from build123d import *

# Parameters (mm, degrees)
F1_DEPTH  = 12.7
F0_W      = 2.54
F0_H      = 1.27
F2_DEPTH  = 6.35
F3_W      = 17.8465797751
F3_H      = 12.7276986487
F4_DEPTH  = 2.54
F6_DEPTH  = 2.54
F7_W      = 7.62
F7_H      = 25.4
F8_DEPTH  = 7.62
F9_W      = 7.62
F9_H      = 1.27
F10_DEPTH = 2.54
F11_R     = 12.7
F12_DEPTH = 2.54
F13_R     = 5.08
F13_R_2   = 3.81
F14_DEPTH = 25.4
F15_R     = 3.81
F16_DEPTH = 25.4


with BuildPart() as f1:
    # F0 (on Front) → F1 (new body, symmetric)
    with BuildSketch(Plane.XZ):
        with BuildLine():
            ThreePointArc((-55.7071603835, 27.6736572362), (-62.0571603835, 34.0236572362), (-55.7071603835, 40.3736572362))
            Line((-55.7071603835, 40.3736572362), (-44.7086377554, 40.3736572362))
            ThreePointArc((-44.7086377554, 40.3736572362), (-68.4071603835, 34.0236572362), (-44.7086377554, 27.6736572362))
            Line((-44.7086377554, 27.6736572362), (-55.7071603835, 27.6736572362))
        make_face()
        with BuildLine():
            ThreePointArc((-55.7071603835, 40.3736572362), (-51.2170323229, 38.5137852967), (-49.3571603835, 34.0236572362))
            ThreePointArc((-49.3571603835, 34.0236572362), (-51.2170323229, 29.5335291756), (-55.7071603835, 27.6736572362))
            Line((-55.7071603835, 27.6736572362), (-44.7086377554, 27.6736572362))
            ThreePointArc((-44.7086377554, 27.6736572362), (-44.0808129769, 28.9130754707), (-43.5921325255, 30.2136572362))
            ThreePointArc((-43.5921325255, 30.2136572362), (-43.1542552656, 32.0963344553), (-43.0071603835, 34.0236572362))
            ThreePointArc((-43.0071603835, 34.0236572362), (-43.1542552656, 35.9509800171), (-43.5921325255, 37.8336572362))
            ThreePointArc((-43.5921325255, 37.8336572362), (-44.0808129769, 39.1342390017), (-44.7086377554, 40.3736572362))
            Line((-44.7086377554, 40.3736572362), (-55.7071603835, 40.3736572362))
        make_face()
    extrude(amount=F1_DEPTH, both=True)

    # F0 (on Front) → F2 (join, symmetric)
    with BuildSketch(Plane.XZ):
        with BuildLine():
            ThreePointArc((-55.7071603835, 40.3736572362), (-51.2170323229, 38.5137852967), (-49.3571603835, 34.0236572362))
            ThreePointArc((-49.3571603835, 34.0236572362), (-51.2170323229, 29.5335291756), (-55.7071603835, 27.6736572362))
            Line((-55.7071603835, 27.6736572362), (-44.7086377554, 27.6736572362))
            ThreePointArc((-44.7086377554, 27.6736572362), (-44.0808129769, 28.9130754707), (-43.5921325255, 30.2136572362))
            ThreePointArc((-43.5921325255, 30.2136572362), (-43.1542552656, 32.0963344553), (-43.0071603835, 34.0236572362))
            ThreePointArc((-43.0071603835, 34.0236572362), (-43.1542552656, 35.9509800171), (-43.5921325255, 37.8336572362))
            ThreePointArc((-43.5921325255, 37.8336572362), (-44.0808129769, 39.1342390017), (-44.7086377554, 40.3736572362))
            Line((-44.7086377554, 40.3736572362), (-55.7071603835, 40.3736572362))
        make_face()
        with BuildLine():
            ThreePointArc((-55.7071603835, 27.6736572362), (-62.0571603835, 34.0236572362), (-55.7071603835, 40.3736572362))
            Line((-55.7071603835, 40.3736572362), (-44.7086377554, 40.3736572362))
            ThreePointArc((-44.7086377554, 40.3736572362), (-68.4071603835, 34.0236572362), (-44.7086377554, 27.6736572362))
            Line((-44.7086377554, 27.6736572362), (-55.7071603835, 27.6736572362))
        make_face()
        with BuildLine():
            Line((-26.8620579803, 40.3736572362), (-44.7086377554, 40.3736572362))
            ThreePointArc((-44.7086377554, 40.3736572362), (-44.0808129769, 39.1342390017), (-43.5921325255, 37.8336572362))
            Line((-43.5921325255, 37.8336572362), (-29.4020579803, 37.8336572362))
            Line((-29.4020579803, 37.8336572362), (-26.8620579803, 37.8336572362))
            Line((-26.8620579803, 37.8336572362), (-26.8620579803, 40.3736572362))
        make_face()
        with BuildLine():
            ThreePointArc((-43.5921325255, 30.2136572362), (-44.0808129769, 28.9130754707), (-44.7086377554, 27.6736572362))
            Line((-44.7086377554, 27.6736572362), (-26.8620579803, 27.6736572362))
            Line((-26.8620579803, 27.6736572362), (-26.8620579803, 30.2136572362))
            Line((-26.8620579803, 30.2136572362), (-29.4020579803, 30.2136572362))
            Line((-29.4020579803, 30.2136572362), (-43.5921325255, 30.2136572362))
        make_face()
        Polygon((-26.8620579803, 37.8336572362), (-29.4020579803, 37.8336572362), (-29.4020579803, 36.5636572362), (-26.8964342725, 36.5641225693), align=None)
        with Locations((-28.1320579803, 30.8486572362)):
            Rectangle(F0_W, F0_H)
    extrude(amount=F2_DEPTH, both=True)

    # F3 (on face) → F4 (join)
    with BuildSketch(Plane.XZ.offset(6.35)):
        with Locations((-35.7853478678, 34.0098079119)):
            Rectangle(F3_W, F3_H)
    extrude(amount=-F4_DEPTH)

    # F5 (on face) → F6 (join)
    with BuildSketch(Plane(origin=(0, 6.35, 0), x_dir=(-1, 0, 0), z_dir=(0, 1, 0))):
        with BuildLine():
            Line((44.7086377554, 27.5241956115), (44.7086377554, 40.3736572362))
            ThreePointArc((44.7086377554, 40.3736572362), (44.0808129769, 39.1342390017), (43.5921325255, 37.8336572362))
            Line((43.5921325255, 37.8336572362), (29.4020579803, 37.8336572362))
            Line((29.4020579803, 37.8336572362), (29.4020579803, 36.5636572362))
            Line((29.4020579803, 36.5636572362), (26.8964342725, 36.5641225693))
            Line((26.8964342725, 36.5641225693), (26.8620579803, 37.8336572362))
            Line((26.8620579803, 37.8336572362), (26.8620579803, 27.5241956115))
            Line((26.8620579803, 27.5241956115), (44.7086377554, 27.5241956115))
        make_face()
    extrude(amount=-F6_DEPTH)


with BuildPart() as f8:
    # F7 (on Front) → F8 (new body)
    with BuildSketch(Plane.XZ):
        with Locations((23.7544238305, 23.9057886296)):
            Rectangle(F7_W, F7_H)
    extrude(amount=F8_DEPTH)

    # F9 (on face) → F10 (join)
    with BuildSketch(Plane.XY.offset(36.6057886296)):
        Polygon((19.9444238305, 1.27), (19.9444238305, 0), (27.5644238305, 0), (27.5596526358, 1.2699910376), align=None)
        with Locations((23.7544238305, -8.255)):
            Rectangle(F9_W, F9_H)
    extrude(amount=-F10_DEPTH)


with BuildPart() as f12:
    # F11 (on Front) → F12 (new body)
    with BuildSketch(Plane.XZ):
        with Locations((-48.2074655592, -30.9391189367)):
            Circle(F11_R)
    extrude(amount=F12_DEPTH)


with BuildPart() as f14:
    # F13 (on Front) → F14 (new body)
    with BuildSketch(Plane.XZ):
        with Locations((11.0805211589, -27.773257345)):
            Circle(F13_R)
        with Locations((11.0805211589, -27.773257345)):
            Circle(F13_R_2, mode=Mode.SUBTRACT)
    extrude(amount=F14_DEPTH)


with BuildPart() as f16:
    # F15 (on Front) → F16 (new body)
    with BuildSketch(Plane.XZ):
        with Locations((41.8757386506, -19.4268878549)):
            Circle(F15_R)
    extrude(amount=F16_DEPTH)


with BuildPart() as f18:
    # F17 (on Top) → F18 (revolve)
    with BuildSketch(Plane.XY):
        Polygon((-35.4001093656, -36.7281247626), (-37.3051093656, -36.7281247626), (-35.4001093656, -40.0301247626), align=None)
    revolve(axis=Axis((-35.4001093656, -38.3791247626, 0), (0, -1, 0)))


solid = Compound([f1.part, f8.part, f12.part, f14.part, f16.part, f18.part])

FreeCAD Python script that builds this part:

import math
import FreeCAD as App
import Part
import Sketcher
from FreeCAD import Vector
Q = App.Units.Quantity


def add_polygon(sketch, points):
    """Adds a closed chain of lines whose ends are joined by coincident constraints."""
    first, n = sketch.GeometryCount, len(points)
    for a, b in zip(points, points[1:] + points[:1]):
        sketch.addGeometry(Part.LineSegment(App.Vector(*a, 0), App.Vector(*b, 0)), False)
    for i in range(n):
        sketch.addConstraint(Sketcher.Constraint("Coincident", first + i, 2, first + (i + 1) % n, 1))

doc = App.newDocument("Part")
body = doc.addObject("PartDesign::Body", "Body")

# Sketch on XZ plane
sketch1 = doc.addObject("Sketcher::SketchObject", "Sketch")
body.addObject(sketch1)
sketch1.AttachmentSupport = (doc.XZ_Plane, [""])
sketch1.MapMode = "FlatFace"
sketch1.addGeometry(Part.ArcOfCircle(Part.Circle(Vector(-55.7, 34, 0), Vector(0, 0, 1), 12.7), math.radians(30), math.radians(330)), False)
sketch1.addGeometry(Part.ArcOfCircle(Part.Circle(Vector(-55.7, 34, 0), Vector(0, 0, 1), 12.7), math.radians(-30), math.radians(-17.46)), False)
sketch1.addGeometry(Part.ArcOfCircle(Part.Circle(Vector(-55.7, 34, 0), Vector(0, 0, 1), 12.7), math.radians(-17.46), math.radians(0)), False)
sketch1.addGeometry(Part.ArcOfCircle(Part.Circle(Vector(-55.7, 34, 0), Vector(0, 0, 1), 12.7), math.radians(0), math.radians(17.46)), False)
sketch1.addGeometry(Part.ArcOfCircle(Part.Circle(Vector(-55.7, 34, 0), Vector(0, 0, 1), 12.7), math.radians(17.46), math.radians(30)), False)
sketch1.addGeometry(Part.ArcOfCircle(Part.Circle(Vector(-55.7, 34, 0), Vector(0, 0, 1), 6.3), math.radians(90), math.radians(270)), False)
sketch1.addGeometry(Part.ArcOfCircle(Part.Circle(Vector(-55.7, 34, 0), Vector(0, 0, 1), 6.3), math.radians(0), math.radians(90)), False)
sketch1.addGeometry(Part.ArcOfCircle(Part.Circle(Vector(-55.7, 34, 0), Vector(0, 0, 1), 6.3), math.radians(-90), math.radians(0)), False)
sketch1.addConstraint(Sketcher.Constraint("Tangent", 0, 2, 1, 1))
sketch1.addConstraint(Sketcher.Constraint("Tangent", 1, 2, 2, 1))
sketch1.addConstraint(Sketcher.Constraint("Tangent", 2, 2, 3, 1))
sketch1.addConstraint(Sketcher.Constraint("Tangent", 3, 2, 4, 1))
sketch1.addConstraint(Sketcher.Constraint("Tangent", 4, 2, 0, 1))
sketch1.addConstraint(Sketcher.Constraint("Tangent", 5, 1, 6, 2))
sketch1.addConstraint(Sketcher.Constraint("Tangent", 6, 1, 7, 2))
sketch1.addConstraint(Sketcher.Constraint("Tangent", 7, 1, 5, 2))
sketch1.addConstraint(Sketcher.Constraint("Coincident", 2, 3, 0, 3))
sketch1.addConstraint(Sketcher.Constraint("Coincident", 5, 3, 0, 3))
sketch1.addConstraint(Sketcher.Constraint("Horizontal", 7, 3, 2, 2))
sketch1.addConstraint(Sketcher.Constraint("Horizontal", 4, 2, 5, 1))
sketch1.addConstraint(Sketcher.Constraint("Horizontal", 2, 2, 6, 1))
sketch1.addConstraint(Sketcher.Constraint("Horizontal", 0, 2, 7, 1))
sketch1.addConstraint(Sketcher.Constraint("Vertical", 1, 2, 3, 2))
sketch1.addConstraint(Sketcher.Constraint("Vertical", 7, 3, 5, 1))
sketch1.addConstraint(Sketcher.Constraint("Vertical", 5, 1, 7, 1))
sketch1.addConstraint(Sketcher.Constraint("Radius", 0, Q("0.5 in")))
sketch1.addConstraint(Sketcher.Constraint("Radius", 5, Q("0.25 in")))
sketch1.addConstraint(Sketcher.Constraint("DistanceY", 0, 2, 1, 2, Q("0.1 in")))
sketch1.addConstraint(Sketcher.Constraint("DistanceX", 0, 3, -1, 1, 55.70716))
sketch1.addConstraint(Sketcher.Constraint("DistanceY", -1, 1, 0, 3, 34.023657))
pad1 = doc.addObject("PartDesign::Pad", "Pad")
body.addObject(pad1)
pad1.Profile = sketch1
pad1.Length = Q("1 in")
pad1.Midplane = True

# Sketch on XZ plane
sketch2 = doc.addObject("Sketcher::SketchObject", "Sketch001")
body.addObject(sketch2)
sketch2.AttachmentSupport = (doc.XZ_Plane, [""])
sketch2.MapMode = "FlatFace"
sketch2.addGeometry(Part.ArcOfCircle(Part.Circle(Vector(-55.7, 34, 0), Vector(0, 0, 1), 12.7), math.radians(-17.46), math.radians(0)), False)
sketch2.addGeometry(Part.ArcOfCircle(Part.Circle(Vector(-55.7, 34, 0), Vector(0, 0, 1), 12.7), math.radians(0), math.radians(17.46)), False)
sketch2.addGeometry(Part.LineSegment(Vector(-43.6, 37.8, 0), Vector(-29.4, 37.8, 0)), False)
sketch2.addGeometry(Part.LineSegment(Vector(-29.4, 37.8, 0), Vector(-29.4, 36.6, 0)), False)
sketch2.addGeometry(Part.LineSegment(Vector(-29.4, 36.6, 0), Vector(-26.9, 36.6, 0)), False)
sketch2.addGeometry(Part.LineSegment(Vector(-26.9, 36.6, 0), Vector(-26.9, 37.8, 0)), False)
sketch2.addGeometry(Part.LineSegment(Vector(-26.9, 37.8, 0), Vector(-26.9, 40.4, 0)), False)
sketch2.addGeometry(Part.LineSegment(Vector(-26.9, 40.4, 0), Vector(-44.7, 40.4, 0)), False)
sketch2.addGeometry(Part.ArcOfCircle(Part.Circle(Vector(-55.7, 34, 0), Vector(0, 0, 1), 12.7), math.radians(30), math.radians(330)), False)
sketch2.addGeometry(Part.LineSegment(Vector(-44.7, 27.7, 0), Vector(-26.9, 27.7, 0)), False)
sketch2.addGeometry(Part.LineSegment(Vector(-26.9, 27.7, 0), Vector(-26.9, 31.5, 0)), False)
sketch2.addGeometry(Part.LineSegment(Vector(-26.9, 31.5, 0), Vector(-29.4, 31.5, 0)), False)
sketch2.addGeometry(Part.LineSegment(Vector(-29.4, 31.5, 0), Vector(-29.4, 30.2, 0)), False)
sketch2.addGeometry(Part.LineSegment(Vector(-29.4, 30.2, 0), Vector(-43.6, 30.2, 0)), False)
sketch2.addGeometry(Part.ArcOfCircle(Part.Circle(Vector(-55.7, 34, 0), Vector(0, 0, 1), 6.3), math.radians(0), math.radians(90)), False)
sketch2.addGeometry(Part.ArcOfCircle(Part.Circle(Vector(-55.7, 34, 0), Vector(0, 0, 1), 6.3), math.radians(-90), math.radians(0)), False)
sketch2.addGeometry(Part.ArcOfCircle(Part.Circle(Vector(-55.7, 34, 0), Vector(0, 0, 1), 6.3), math.radians(90), math.radians(270)), False)
sketch2.addConstraint(Sketcher.Constraint("Tangent", 0, 2, 1, 1))
sketch2.addConstraint(Sketcher.Constraint("Coincident", 1, 2, 2, 1))
sketch2.addConstraint(Sketcher.Constraint("Coincident", 2, 2, 3, 1))
sketch2.addConstraint(Sketcher.Constraint("Coincident", 3, 2, 4, 1))
sketch2.addConstraint(Sketcher.Constraint("Coincident", 4, 2, 5, 1))
sketch2.addConstraint(Sketcher.Constraint("Coincident", 5, 2, 6, 1))
sketch2.addConstraint(Sketcher.Constraint("Coincident", 6, 2, 7, 1))
sketch2.addConstraint(Sketcher.Constraint("Coincident", 7, 2, 8, 1))
sketch2.addConstraint(Sketcher.Constraint("Coincident", 8, 2, 9, 1))
sketch2.addConstraint(Sketcher.Constraint("Coincident", 9, 2, 10, 1))
sketch2.addConstraint(Sketcher.Constraint("Coincident", 10, 2, 11, 1))
sketch2.addConstraint(Sketcher.Constraint("Coincident", 11, 2, 12, 1))
sketch2.addConstraint(Sketcher.Constraint("Coincident", 12, 2, 13, 1))
sketch2.addConstraint(Sketcher.Constraint("Coincident", 13, 2, 0, 1))
sketch2.addConstraint(Sketcher.Constraint("Tangent", 14, 1, 15, 2))
sketch2.addConstraint(Sketcher.Constraint("Tangent", 15, 1, 16, 2))
sketch2.addConstraint(Sketcher.Constraint("Tangent", 16, 1, 14, 2))
sketch2.addConstraint(Sketcher.Constraint("Horizontal", 2))
sketch2.addConstraint(Sketcher.Constraint("Vertical", 3))
sketch2.addConstraint(Sketcher.Constraint("Vertical", 6))
sketch2.addConstraint(Sketcher.Constraint("Horizontal", 7))
sketch2.addConstraint(Sketcher.Constraint("Horizontal", 9))
sketch2.addConstraint(Sketcher.Constraint("Vertical", 10))
sketch2.addConstraint(Sketcher.Constraint("Horizontal", 11))
sketch2.addConstraint(Sketcher.Constraint("Vertical", 12))
sketch2.addConstraint(Sketcher.Constraint("Horizontal", 13))
sketch2.addConstraint(Sketcher.Constraint("Coincident", 8, 3, 0, 3))
sketch2.addConstraint(Sketcher.Constraint("Coincident", 14, 3, 0, 3))
sketch2.addConstraint(Sketcher.Constraint("Equal", 0, 1))
sketch2.addConstraint(Sketcher.Constraint("Equal", 1, 8))
sketch2.addConstraint(Sketcher.Constraint("Horizontal", 16, 3, 0, 2))
sketch2.addConstraint(Sketcher.Constraint("Horizontal", 2, 2, 5, 2))
sketch2.addConstraint(Sketcher.Constraint("Horizontal", 0, 2, 14, 1))
sketch2.addConstraint(Sketcher.Constraint("Horizontal", 9, 2, 15, 1))
sketch2.addConstraint(Sketcher.Constraint("Horizontal", 7, 2, 16, 1))
sketch2.addConstraint(Sketcher.Constraint("Vertical", 6, 2, 9, 2))
sketch2.addConstraint(Sketcher.Constraint("Vertical", 3, 2, 11, 2))
sketch2.addConstraint(Sketcher.Constraint("Vertical", 1, 2, 13, 2))
sketch2.addConstraint(Sketcher.Constraint("Vertical", 16, 3, 15, 1))
sketch2.addConstraint(Sketcher.Constraint("Vertical", 15, 1, 16, 1))
sketch2.addConstraint(Sketcher.Constraint("Equal", 11, 6))
sketch2.addConstraint(Sketcher.Constraint("Equal", 3, 12))
sketch2.addConstraint(Sketcher.Constraint("Radius", 0, Q("0.5 in")))
sketch2.addConstraint(Sketcher.Constraint("Radius", 14, Q("0.25 in")))
sketch2.addConstraint(Sketcher.Constraint("DistanceX", 11, 2, 11, 1, Q("0.1 in")))
sketch2.addConstraint(Sketcher.Constraint("DistanceY", 3, 2, 3, 1, Q("0.05 in")))
sketch2.addConstraint(Sketcher.Constraint("Distance", 5, Q("0.05 in")))
sketch2.addConstraint(Sketcher.Constraint("DistanceX", 7, 2, 7, 1, 17.84658))
sketch2.addConstraint(Sketcher.Constraint("DistanceX", 1, 2, 4, 2, 16.695698))
sketch2.addConstraint(Sketcher.Constraint("DistanceX", 0, 3, -1, 1, 55.70716))
sketch2.addConstraint(Sketcher.Constraint("DistanceY", -1, 1, 0, 3, 34.023657))
pad2 = doc.addObject("PartDesign::Pad", "Pad001")
body.addObject(pad2)
pad2.Profile = sketch2
pad2.Length = Q("0.5 in")
pad2.Midplane = True

# Sketch on XZ plane
sketch3 = doc.addObject("Sketcher::SketchObject", "Sketch002")
body.addObject(sketch3)
sketch3.AttachmentSupport = (doc.XZ_Plane, [""])
sketch3.MapMode = "FlatFace"
sketch3.AttachmentOffset = App.Placement(Vector(0, 0, 0.25 * 25.4), App.Rotation())
add_polygon(sketch3, [(-45, 40), (-45, 28), (-27, 28), (-27, 40)])  # lines 0-3
sketch3.addConstraint(Sketcher.Constraint("Vertical", 0))
sketch3.addConstraint(Sketcher.Constraint("Horizontal", 1))
sketch3.addConstraint(Sketcher.Constraint("Vertical", 2))
sketch3.addConstraint(Sketcher.Constraint("Horizontal", 3))
sketch3.addConstraint(Sketcher.Constraint("DistanceY", 0, 2, 0, 1, 12.727699))
sketch3.addConstraint(Sketcher.Constraint("DistanceX", 1, 1, 1, 2, 17.84658))
sketch3.addConstraint(Sketcher.Constraint("DistanceY", -1, 1, 0, 2, 27.645959))
sketch3.addConstraint(Sketcher.Constraint("DistanceX", 0, 2, -1, 1, 44.708638))
pad3 = doc.addObject("PartDesign::Pad", "Pad002")
body.addObject(pad3)
pad3.Profile = sketch3
pad3.Length = Q("0.1 in")
pad3.Reversed = True

# Sketch on XZ plane
sketch4 = doc.addObject("Sketcher::SketchObject", "Sketch003")
body.addObject(sketch4)
sketch4.AttachmentSupport = (doc.XZ_Plane, [""])
sketch4.MapMode = "FlatFace"
sketch4.AttachmentOffset = App.Placement(Vector(0, 0, -0.25 * 25.4), App.Rotation())
sketch4.addGeometry(Part.LineSegment(Vector(-44.7, 27.5, 0), Vector(-44.7, 40.4, 0)), False)
sketch4.addGeometry(Part.ArcOfCircle(Part.Circle(Vector(-55.7, 34, 0), Vector(0, 0, 1), 12.7), math.radians(17.46), math.radians(30)), False)
sketch4.addGeometry(Part.LineSegment(Vector(-43.6, 37.8, 0), Vector(-29.4, 37.8, 0)), False)
sketch4.addGeometry(Part.LineSegment(Vector(-29.4, 37.8, 0), Vector(-29.4, 36.6, 0)), False)
sketch4.addGeometry(Part.LineSegment(Vector(-29.4, 36.6, 0), Vector(-26.9, 36.6, 0)), False)
sketch4.addGeometry(Part.LineSegment(Vector(-26.9, 36.6, 0), Vector(-26.9, 37.8, 0)), False)
sketch4.addGeometry(Part.LineSegment(Vector(-26.9, 37.8, 0), Vector(-26.9, 27.5, 0)), False)
sketch4.addGeometry(Part.LineSegment(Vector(-26.9, 27.5, 0), Vector(-44.7, 27.5, 0)), False)
sketch4.addConstraint(Sketcher.Constraint("Coincident", 0, 2, 1, 2))
sketch4.addConstraint(Sketcher.Constraint("Coincident", 1, 1, 2, 1))
sketch4.addConstraint(Sketcher.Constraint("Coincident", 2, 2, 3, 1))
sketch4.addConstraint(Sketcher.Constraint("Coincident", 3, 2, 4, 1))
sketch4.addConstraint(Sketcher.Constraint("Coincident", 4, 2, 5, 1))
sketch4.addConstraint(Sketcher.Constraint("Coincident", 5, 2, 6, 1))
sketch4.addConstraint(Sketcher.Constraint("Coincident", 6, 2, 7, 1))
sketch4.addConstraint(Sketcher.Constraint("Coincident", 7, 2, 0, 1))
sketch4.addConstraint(Sketcher.Constraint("Vertical", 0))
sketch4.addConstraint(Sketcher.Constraint("Horizontal", 2))
sketch4.addConstraint(Sketcher.Constraint("Vertical", 3))
sketch4.addConstraint(Sketcher.Constraint("Vertical", 6))
sketch4.addConstraint(Sketcher.Constraint("Horizontal", 7))
sketch4.addConstraint(Sketcher.Constraint("Horizontal", 2, 2, 5, 2))
sketch4.addConstraint(Sketcher.Constraint("Radius", 1, Q("0.5 in")))
sketch4.addConstraint(Sketcher.Constraint("DistanceY", 3, 2, 3, 1, Q("0.05 in")))
sketch4.addConstraint(Sketcher.Constraint("DistanceY", 1, 1, 0, 2, Q("0.1 in")))
sketch4.addConstraint(Sketcher.Constraint("DistanceY", 1, 3, 3, 2, Q("0.1 in")))
sketch4.addConstraint(Sketcher.Constraint("DistanceX", 2, 2, 5, 2, Q("0.1 in")))
sketch4.addConstraint(Sketcher.Constraint("Distance", 5, Q("0.05 in")))
sketch4.addConstraint(Sketcher.Constraint("DistanceX", 7, 2, 7, 1, 17.84658))
sketch4.addConstraint(Sketcher.Constraint("DistanceY", 0, 1, 0, 2, 12.849462))
sketch4.addConstraint(Sketcher.Constraint("DistanceX", 1, 1, 4, 2, 16.695698))
sketch4.addConstraint(Sketcher.Constraint("DistanceX", 1, 3, -1, 1, 55.70716))
sketch4.addConstraint(Sketcher.Constraint("DistanceY", -1, 1, 1, 3, 34.023657))
pad4 = doc.addObject("PartDesign::Pad", "Pad003")
body.addObject(pad4)
pad4.Profile = sketch4
pad4.Length = Q("0.1 in")
body2 = doc.addObject("PartDesign::Body", "Body001")

# Sketch on XZ plane
sketch5 = doc.addObject("Sketcher::SketchObject", "Sketch004")
body2.addObject(sketch5)
sketch5.AttachmentSupport = (doc.getObject("XZ_Plane001"), [""])
sketch5.MapMode = "FlatFace"
add_polygon(sketch5, [(20, 37), (20, 11), (28, 11), (28, 37)])  # lines 0-3
sketch5.addConstraint(Sketcher.Constraint("Vertical", 0))
sketch5.addConstraint(Sketcher.Constraint("Horizontal", 1))
sketch5.addConstraint(Sketcher.Constraint("Vertical", 2))
sketch5.addConstraint(Sketcher.Constraint("Horizontal", 3))
sketch5.addConstraint(Sketcher.Constraint("DistanceY", 0, 2, 0, 1, Q("1 in")))
sketch5.addConstraint(Sketcher.Constraint("DistanceX", 1, 1, 1, 2, Q("0.3 in")))
sketch5.addConstraint(Sketcher.Constraint("DistanceY", -1, 1, 0, 2, 11.205789))
sketch5.addConstraint(Sketcher.Constraint("DistanceX", -1, 1, 0, 2, 19.944424))
pad5 = doc.addObject("PartDesign::Pad", "Pad004")
body2.addObject(pad5)
pad5.Profile = sketch5
pad5.Length = Q("0.3 in")

# Sketch on XY plane
sketch6 = doc.addObject("Sketcher::SketchObject", "Sketch005")
body2.addObject(sketch6)
sketch6.AttachmentSupport = (doc.getObject("XY_Plane001"), [""])
sketch6.MapMode = "FlatFace"
sketch6.AttachmentOffset = App.Placement(Vector(0, 0, 36.605789), App.Rotation())
add_polygon(sketch6, [(19.9, 1.3), (19.9, 0), (27.6, 0), (27.6, 1.3)])  # lines 0-3
add_polygon(sketch6, [(19.9, -7.6), (19.9, -8.9), (27.6, -8.9), (27.6, -7.6)])  # lines 4-7
sketch6.addConstraint(Sketcher.Constraint("Vertical", 0))
sketch6.addConstraint(Sketcher.Constraint("Horizontal", 1))
sketch6.addConstraint(Sketcher.Constraint("Vertical", 4))
sketch6.addConstraint(Sketcher.Constraint("Horizontal", 5))
sketch6.addConstraint(Sketcher.Constraint("Vertical", 6))
sketch6.addConstraint(Sketcher.Constraint("Horizontal", 7))
sketch6.addConstraint(Sketcher.Constraint("PointOnObject", 0, 2, -1))
sketch6.addConstraint(Sketcher.Constraint("Vertical", 3, 2, 4, 2))
sketch6.addConstraint(Sketcher.Constraint("Vertical", 1, 2, 5, 2))
sketch6.addConstraint(Sketcher.Constraint("Equal", 0, 4))
sketch6.addConstraint(Sketcher.Constraint("DistanceX", 1, 1, 1, 2, Q("0.3 in")))
sketch6.addConstraint(Sketcher.Constraint("DistanceY", 0, 2, 0, 1, Q("0.05 in")))
sketch6.addConstraint(Sketcher.Constraint("DistanceY", 6, 2, -1, 1, Q("0.3 in")))
sketch6.addConstraint(Sketcher.Constraint("Distance", 2, Q("0.05 in")))
sketch6.addConstraint(Sketcher.Constraint("Distance", 3, 7.615229))
sketch6.addConstraint(Sketcher.Constraint("DistanceX", -1, 1, 0, 2, 19.944424))
pad6 = doc.addObject("PartDesign::Pad", "Pad005")
body2.addObject(pad6)
pad6.Profile = sketch6
pad6.Length = Q("0.1 in")
pad6.Reversed = True
body3 = doc.addObject("PartDesign::Body", "Body002")

# Sketch on XZ plane
sketch7 = doc.addObject("Sketcher::SketchObject", "Sketch006")
body3.addObject(sketch7)
sketch7.AttachmentSupport = (doc.getObject("XZ_Plane002"), [""])
sketch7.MapMode = "FlatFace"
sketch7.addGeometry(Part.Circle(Vector(-48, -31, 0), Vector(0, 0, 1), 13), False)
sketch7.addConstraint(Sketcher.Constraint("Diameter", 0, Q("1 in")))
sketch7.addConstraint(Sketcher.Constraint("DistanceY", 0, 3, -1, 1, 30.939119))
sketch7.addConstraint(Sketcher.Constraint("DistanceX", 0, 3, -1, 1, 48.207466))
pad7 = doc.addObject("PartDesign::Pad", "Pad006")
body3.addObject(pad7)
pad7.Profile = sketch7
pad7.Length = Q("0.1 in")
body4 = doc.addObject("PartDesign::Body", "Body003")

# Sketch on XZ plane
sketch8 = doc.addObject("Sketcher::SketchObject", "Sketch007")
body4.addObject(sketch8)
sketch8.AttachmentSupport = (doc.getObject("XZ_Plane003"), [""])
sketch8.MapMode = "FlatFace"
sketch8.addGeometry(Part.Circle(Vector(11.1, -27.8, 0), Vector(0, 0, 1), 5.1), False)
sketch8.addGeometry(Part.Circle(Vector(11.1, -27.8, 0), Vector(0, 0, 1), 3.8), False)
sketch8.addConstraint(Sketcher.Constraint("Coincident", 1, 3, 0, 3))
sketch8.addConstraint(Sketcher.Constraint("Diameter", 0, Q("0.4 in")))
sketch8.addConstraint(Sketcher.Constraint("Diameter", 1, Q("0.3 in")))
sketch8.addConstraint(Sketcher.Constraint("DistanceX", -1, 1, 0, 3, 11.080521))
sketch8.addConstraint(Sketcher.Constraint("DistanceY", 0, 3, -1, 1, 27.773257))
pad8 = doc.addObject("PartDesign::Pad", "Pad007")
body4.addObject(pad8)
pad8.Profile = sketch8
pad8.Length = Q("1 in")
body5 = doc.addObject("PartDesign::Body", "Body004")

# Sketch on XZ plane
sketch9 = doc.addObject("Sketcher::SketchObject", "Sketch008")
body5.addObject(sketch9)
sketch9.AttachmentSupport = (doc.getObject("XZ_Plane004"), [""])
sketch9.MapMode = "FlatFace"
sketch9.addGeometry(Part.Circle(Vector(41.9, -19.4, 0), Vector(0, 0, 1), 3.8), False)
sketch9.addConstraint(Sketcher.Constraint("Diameter", 0, Q("0.3 in")))
sketch9.addConstraint(Sketcher.Constraint("DistanceX", -1, 1, 0, 3, 41.875739))
sketch9.addConstraint(Sketcher.Constraint("DistanceY", 0, 3, -1, 1, 19.426888))
pad9 = doc.addObject("PartDesign::Pad", "Pad008")
body5.addObject(pad9)
pad9.Profile = sketch9
pad9.Length = Q("1 in")
body6 = doc.addObject("PartDesign::Body", "Body005")

# Sketch on XY plane
sketch10 = doc.addObject("Sketcher::SketchObject", "Sketch009")
body6.addObject(sketch10)
sketch10.AttachmentSupport = (doc.getObject("XY_Plane005"), [""])
sketch10.MapMode = "FlatFace"
add_polygon(sketch10, [(-35.4, -36.7), (-37.3, -36.7), (-35.4, -40)])  # lines 0-2
sketch10.addGeometry(Part.LineSegment(Vector(-35.4, -36.7, 0), Vector(-35.4, -40, 0)), True)  # axis
sketch10.addConstraint(Sketcher.Constraint("Horizontal", 0))
sketch10.addConstraint(Sketcher.Constraint("Vertical", 2))
sketch10.addConstraint(Sketcher.Constraint("Vertical", 3))
sketch10.addConstraint(Sketcher.Constraint("Coincident", 3, 1, 2, 2))
sketch10.addConstraint(Sketcher.Constraint("Equal", 2, 3))
sketch10.addConstraint(Sketcher.Constraint("DistanceY", 2, 1, 2, 2, Q("0.13 in")))
sketch10.addConstraint(Sketcher.Constraint("DistanceX", 0, 2, 0, 1, Q("0.075 in")))
sketch10.addConstraint(Sketcher.Constraint("DistanceX", 0, 2, -1, 1, 37.305109))
sketch10.addConstraint(Sketcher.Constraint("DistanceY", 0, 2, -1, 1, 36.728125))
revolution = doc.addObject("PartDesign::Revolution", "Revolution")
body6.addObject(revolution)
revolution.Profile = sketch10
revolution.ReferenceAxis = (sketch10, ["Axis0"])
revolution.Angle = 360

doc.recompute()
